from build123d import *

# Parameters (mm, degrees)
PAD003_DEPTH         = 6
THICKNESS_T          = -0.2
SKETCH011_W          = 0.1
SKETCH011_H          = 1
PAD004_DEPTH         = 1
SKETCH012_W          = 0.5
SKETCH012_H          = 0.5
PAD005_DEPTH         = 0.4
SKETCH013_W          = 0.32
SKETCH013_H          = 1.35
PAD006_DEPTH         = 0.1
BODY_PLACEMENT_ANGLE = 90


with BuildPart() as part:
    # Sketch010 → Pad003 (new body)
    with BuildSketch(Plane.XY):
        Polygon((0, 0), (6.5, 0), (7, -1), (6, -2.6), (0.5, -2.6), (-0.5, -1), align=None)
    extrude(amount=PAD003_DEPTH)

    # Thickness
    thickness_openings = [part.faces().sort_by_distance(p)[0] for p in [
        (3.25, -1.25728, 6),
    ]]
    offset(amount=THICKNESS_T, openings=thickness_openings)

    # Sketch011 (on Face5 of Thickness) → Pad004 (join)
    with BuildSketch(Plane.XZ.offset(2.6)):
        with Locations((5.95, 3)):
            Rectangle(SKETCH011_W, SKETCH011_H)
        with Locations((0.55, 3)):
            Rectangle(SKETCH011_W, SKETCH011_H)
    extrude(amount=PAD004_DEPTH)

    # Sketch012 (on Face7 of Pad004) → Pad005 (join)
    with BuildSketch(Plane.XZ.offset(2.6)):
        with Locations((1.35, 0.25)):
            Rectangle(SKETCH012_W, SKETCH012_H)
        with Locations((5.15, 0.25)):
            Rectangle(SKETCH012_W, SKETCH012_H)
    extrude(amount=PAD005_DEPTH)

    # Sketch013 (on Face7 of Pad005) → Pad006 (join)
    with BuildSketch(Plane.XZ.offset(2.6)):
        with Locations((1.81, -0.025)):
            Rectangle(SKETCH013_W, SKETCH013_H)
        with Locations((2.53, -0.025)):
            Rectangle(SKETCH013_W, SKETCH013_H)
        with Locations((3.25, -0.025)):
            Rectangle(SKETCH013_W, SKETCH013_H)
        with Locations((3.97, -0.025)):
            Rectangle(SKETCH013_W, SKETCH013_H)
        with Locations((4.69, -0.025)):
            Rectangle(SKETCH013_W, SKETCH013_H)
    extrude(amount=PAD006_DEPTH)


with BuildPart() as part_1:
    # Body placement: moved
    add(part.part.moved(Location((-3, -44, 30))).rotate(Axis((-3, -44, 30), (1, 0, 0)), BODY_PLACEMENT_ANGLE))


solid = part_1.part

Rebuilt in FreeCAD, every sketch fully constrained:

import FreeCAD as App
import Part
import Sketcher
Q = App.Units.Quantity


def faces_at(feature, points):
    """Names of the faces that lie closest to the given points."""
    faces = feature.Shape.Faces
    near = lambda p: min(range(len(faces)), key=lambda i: faces[i].distToShape(Part.Vertex(*p))[0])
    return sorted({f"Face{near(p) + 1}" for p in points})

doc = App.newDocument("Part")
body = doc.addObject("PartDesign::Body", "Body")

# Sketch on XY plane
sketch1 = doc.addObject("Sketcher::SketchObject", "Sketch")
body.addObject(sketch1)
sketch1.AttachmentSupport = (doc.XY_Plane, [""])
sketch1.MapMode = "FlatFace"
sketch1.addGeometry(Part.LineSegment(App.Vector(6.5, 0, 0), App.Vector(0, 0, 0)), False)
sketch1.addGeometry(Part.LineSegment(App.Vector(0, 0, 0), App.Vector(-0.5, -1, 0)), False)
sketch1.addGeometry(Part.LineSegment(App.Vector(-0.5, -1, 0), App.Vector(0.5, -2.6, 0)), False)
sketch1.addGeometry(Part.LineSegment(App.Vector(0.5, -2.6, 0), App.Vector(6, -2.6, 0)), False)
sketch1.addGeometry(Part.LineSegment(App.Vector(6, -2.6, 0), App.Vector(7, -1, 0)), False)
sketch1.addGeometry(Part.LineSegment(App.Vector(7, -1, 0), App.Vector(6.5, 0, 0)), False)
sketch1.addConstraint(Sketcher.Constraint("Coincident", 0, 2, 1, 1))
sketch1.addConstraint(Sketcher.Constraint("Coincident", 1, 2, 2, 1))
sketch1.addConstraint(Sketcher.Constraint("Coincident", 2, 2, 3, 1))
sketch1.addConstraint(Sketcher.Constraint("Coincident", 3, 2, 4, 1))
sketch1.addConstraint(Sketcher.Constraint("Coincident", 4, 2, 5, 1))
sketch1.addConstraint(Sketcher.Constraint("Coincident", 5, 2, 0, 1))
sketch1.addConstraint(Sketcher.Constraint("Horizontal", 0))
sketch1.addConstraint(Sketcher.Constraint("Horizontal", 3))
sketch1.addConstraint(Sketcher.Constraint("Coincident", 0, 2, -1, 1))
sketch1.addConstraint(Sketcher.Constraint("Horizontal", 1, 2, 4, 2))
sketch1.addConstraint(Sketcher.Constraint("Equal", 2, 4))
sketch1.addConstraint(Sketcher.Constraint("Equal", 1, 5))
sketch1.addConstraint(Sketcher.Constraint("DistanceX", 0, 2, 0, 1, Q("6.5 mm")))
sketch1.addConstraint(Sketcher.Constraint("DistanceX", 3, 1, 3, 2, Q("5.5 mm")))
sketch1.addConstraint(Sketcher.Constraint("DistanceY", 1, 2, -1, 1, Q("1 mm")))
sketch1.addConstraint(Sketcher.Constraint("DistanceX", -1, 1, 4, 2, Q("7 mm")))
sketch1.addConstraint(Sketcher.Constraint("DistanceY", 2, 2, -1, 1, Q("2.6 mm")))
pad1 = doc.addObject("PartDesign::Pad", "Pad")
body.addObject(pad1)
pad1.Profile = sketch1
pad1.Length = 6
doc.recompute()

thickness = doc.addObject("PartDesign::Thickness", "Thickness")
body.addObject(thickness)
thickness.Base = (pad1, faces_at(pad1, [(3.25, -1.3, 6)]))
thickness.Value = 0.2
thickness.Reversed = True
thickness.Join = "Arc"

# Sketch on XZ plane
sketch2 = doc.addObject("Sketcher::SketchObject", "Sketch001")
body.addObject(sketch2)
sketch2.AttachmentSupport = (doc.XZ_Plane, [""])
sketch2.MapMode = "FlatFace"
sketch2.AttachmentOffset = App.Placement(App.Vector(0, 0, 2.6), App.Rotation())
sketch2.addGeometry(Part.LineSegment(App.Vector(5.9, 3.5, 0), App.Vector(5.9, 2.5, 0)), False)
sketch2.addGeometry(Part.LineSegment(App.Vector(5.9, 2.5, 0), App.Vector(6, 2.5, 0)), False)
sketch2.addGeometry(Part.LineSegment(App.Vector(6, 2.5, 0), App.Vector(6, 3.5, 0)), False)
sketch2.addGeometry(Part.LineSegment(App.Vector(6, 3.5, 0), App.Vector(5.9, 3.5, 0)), False)
sketch2.addGeometry(Part.LineSegment(App.Vector(0.5, 3.5, 0), App.Vector(0.5, 2.5, 0)), False)
sketch2.addGeometry(Part.LineSegment(App.Vector(0.5, 2.5, 0), App.Vector(0.6, 2.5, 0)), False)
sketch2.addGeometry(Part.LineSegment(App.Vector(0.6, 2.5, 0), App.Vector(0.6, 3.5, 0)), False)
sketch2.addGeometry(Part.LineSegment(App.Vector(0.6, 3.5, 0), App.Vector(0.5, 3.5, 0)), False)
sketch2.addConstraint(Sketcher.Constraint("Coincident", 0, 2, 1, 1))
sketch2.addConstraint(Sketcher.Constraint("Coincident", 1, 2, 2, 1))
sketch2.addConstraint(Sketcher.Constraint("Coincident", 2, 2, 3, 1))
sketch2.addConstraint(Sketcher.Constraint("Coincident", 3, 2, 0, 1))
sketch2.addConstraint(Sketcher.Constraint("Coincident", 4, 2, 5, 1))
sketch2.addConstraint(Sketcher.Constraint("Coincident", 5, 2, 6, 1))
sketch2.addConstraint(Sketcher.Constraint("Coincident", 6, 2, 7, 1))
sketch2.addConstraint(Sketcher.Constraint("Coincident", 7, 2, 4, 1))
sketch2.addConstraint(Sketcher.Constraint("Vertical", 0))
sketch2.addConstraint(Sketcher.Constraint("Horizontal", 1))
sketch2.addConstraint(Sketcher.Constraint("Vertical", 2))
sketch2.addConstraint(Sketcher.Constraint("Horizontal", 3))
sketch2.addConstraint(Sketcher.Constraint("Vertical", 4))
sketch2.addConstraint(Sketcher.Constraint("Horizontal", 5))
sketch2.addConstraint(Sketcher.Constraint("Vertical", 6))
sketch2.addConstraint(Sketcher.Constraint("Horizontal", 7))
sketch2.addConstraint(Sketcher.Constraint("Horizontal", 1, 2, 4, 2))
sketch2.addConstraint(Sketcher.Constraint("Horizontal", 3, 2, 6, 2))
sketch2.addConstraint(Sketcher.Constraint("Equal", 3, 5))
sketch2.addConstraint(Sketcher.Constraint("DistanceY", 0, 2, 0, 1, Q("1 mm")))
sketch2.addConstraint(Sketcher.Constraint("DistanceX", 1, 1, 1, 2, Q("0.1 mm")))
sketch2.addConstraint(Sketcher.Constraint("DistanceX", -1, 1, 1, 2, Q("6 mm")))
sketch2.addConstraint(Sketcher.Constraint("DistanceY", -1, 1, 0, 2, Q("2.5 mm")))
sketch2.addConstraint(Sketcher.Constraint("DistanceX", -1, 1, 4, 2, Q("0.5 mm")))
pad2 = doc.addObject("PartDesign::Pad", "Pad001")
body.addObject(pad2)
pad2.Profile = sketch2
pad2.Length = 1

# Sketch on XZ plane
sketch3 = doc.addObject("Sketcher::SketchObject", "Sketch002")
body.addObject(sketch3)
sketch3.AttachmentSupport = (doc.XZ_Plane, [""])
sketch3.MapMode = "FlatFace"
sketch3.AttachmentOffset = App.Placement(App.Vector(0, 0, 2.6), App.Rotation())
sketch3.addGeometry(Part.LineSegment(App.Vector(1.1, 0.5, 0), App.Vector(1.1, 0, 0)), False)
sketch3.addGeometry(Part.LineSegment(App.Vector(1.1, 0, 0), App.Vector(1.6, 0, 0)), False)
sketch3.addGeometry(Part.LineSegment(App.Vector(1.6, 0, 0), App.Vector(1.6, 0.5, 0)), False)
sketch3.addGeometry(Part.LineSegment(App.Vector(1.6, 0.5, 0), App.Vector(1.1, 0.5, 0)), False)
sketch3.addGeometry(Part.LineSegment(App.Vector(4.9, 0.5, 0), App.Vector(4.9, 0, 0)), False)
sketch3.addGeometry(Part.LineSegment(App.Vector(4.9, 0, 0), App.Vector(5.4, 0, 0)), False)
sketch3.addGeometry(Part.LineSegment(App.Vector(5.4, 0, 0), App.Vector(5.4, 0.5, 0)), False)
sketch3.addGeometry(Part.LineSegment(App.Vector(5.4, 0.5, 0), App.Vector(4.9, 0.5, 0)), False)
sketch3.addConstraint(Sketcher.Constraint("Coincident", 0, 2, 1, 1))
sketch3.addConstraint(Sketcher.Constraint("Coincident", 1, 2, 2, 1))
sketch3.addConstraint(Sketcher.Constraint("Coincident", 2, 2, 3, 1))
sketch3.addConstraint(Sketcher.Constraint("Coincident", 3, 2, 0, 1))
sketch3.addConstraint(Sketcher.Constraint("Coincident", 4, 2, 5, 1))
sketch3.addConstraint(Sketcher.Constraint("Coincident", 5, 2, 6, 1))
sketch3.addConstraint(Sketcher.Constraint("Coincident", 6, 2, 7, 1))
sketch3.addConstraint(Sketcher.Constraint("Coincident", 7, 2, 4, 1))
sketch3.addConstraint(Sketcher.Constraint("Vertical", 0))
sketch3.addConstraint(Sketcher.Constraint("Horizontal", 1))
sketch3.addConstraint(Sketcher.Constraint("Vertical", 2))
sketch3.addConstraint(Sketcher.Constraint("Horizontal", 3))
sketch3.addConstraint(Sketcher.Constraint("Vertical", 4))
sketch3.addConstraint(Sketcher.Constraint("Horizontal", 5))
sketch3.addConstraint(Sketcher.Constraint("Vertical", 6))
sketch3.addConstraint(Sketcher.Constraint("Horizontal", 7))
sketch3.addConstraint(Sketcher.Constraint("PointOnObject", 0, 2, -1))
sketch3.addConstraint(Sketcher.Constraint("PointOnObject", 4, 2, -1))
sketch3.addConstraint(Sketcher.Constraint("Horizontal", 3, 2, 6, 2))
sketch3.addConstraint(Sketcher.Constraint("Equal", 3, 5))
sketch3.addConstraint(Sketcher.Constraint("Equal", 7, 0))
sketch3.addConstraint(Sketcher.Constraint("DistanceX", 1, 1, 1, 2, Q("0.5 mm")))
sketch3.addConstraint(Sketcher.Constraint("DistanceX", -1, 1, 0, 2, Q("1.1 mm")))
sketch3.addConstraint(Sketcher.Constraint("DistanceX", -1, 1, 4, 2, Q("4.9 mm")))
pad3 = doc.addObject("PartDesign::Pad", "Pad002")
body.addObject(pad3)
pad3.Profile = sketch3
pad3.Length = 0.4

# Sketch on XZ plane
sketch4 = doc.addObject("Sketcher::SketchObject", "Sketch003")
body.addObject(sketch4)
sketch4.AttachmentSupport = (doc.XZ_Plane, [""])
sketch4.MapMode = "FlatFace"
sketch4.AttachmentOffset = App.Placement(App.Vector(0, 0, 2.6), App.Rotation())
sketch4.addGeometry(Part.LineSegment(App.Vector(1.65, 0.65, 0), App.Vector(1.65, -0.7, 0)), False)
sketch4.addGeometry(Part.LineSegment(App.Vector(1.65, -0.7, 0), App.Vector(1.97, -0.7, 0)), False)
sketch4.addGeometry(Part.LineSegment(App.Vector(1.97, -0.7, 0), App.Vector(1.97, 0.65, 0)), False)
sketch4.addGeometry(Part.LineSegment(App.Vector(1.97, 0.65, 0), App.Vector(1.65, 0.65, 0)), False)
sketch4.addGeometry(Part.LineSegment(App.Vector(2.37, 0.65, 0), App.Vector(2.37, -0.7, 0)), False)
sketch4.addGeometry(Part.LineSegment(App.Vector(2.37, -0.7, 0), App.Vector(2.69, -0.7, 0)), False)
sketch4.addGeometry(Part.LineSegment(App.Vector(2.69, -0.7, 0), App.Vector(2.69, 0.65, 0)), False)
sketch4.addGeometry(Part.LineSegment(App.Vector(2.69, 0.65, 0), App.Vector(2.37, 0.65, 0)), False)
sketch4.addGeometry(Part.LineSegment(App.Vector(3.09, 0.65, 0), App.Vector(3.09, -0.7, 0)), False)
sketch4.addGeometry(Part.LineSegment(App.Vector(3.09, -0.7, 0), App.Vector(3.41, -0.7, 0)), False)
sketch4.addGeometry(Part.LineSegment(App.Vector(3.41, -0.7, 0), App.Vector(3.41, 0.65, 0)), False)
sketch4.addGeometry(Part.LineSegment(App.Vector(3.41, 0.65, 0), App.Vector(3.09, 0.65, 0)), False)
sketch4.addGeometry(Part.LineSegment(App.Vector(3.81, 0.65, 0), App.Vector(3.81, -0.7, 0)), False)
sketch4.addGeometry(Part.LineSegment(App.Vector(3.81, -0.7, 0), App.Vector(4.13, -0.7, 0)), False)
sketch4.addGeometry(Part.LineSegment(App.Vector(4.13, -0.7, 0), App.Vector(4.13, 0.65, 0)), False)
sketch4.addGeometry(Part.LineSegment(App.Vector(4.13, 0.65, 0), App.Vector(3.81, 0.65, 0)), False)
sketch4.addGeometry(Part.LineSegment(App.Vector(4.53, 0.65, 0), App.Vector(4.53, -0.7, 0)), False)
sketch4.addGeometry(Part.LineSegment(App.Vector(4.53, -0.7, 0), App.Vector(4.85, -0.7, 0)), False)
sketch4.addGeometry(Part.LineSegment(App.Vector(4.85, -0.7, 0), App.Vector(4.85, 0.65, 0)), False)
sketch4.addGeometry(Part.LineSegment(App.Vector(4.85, 0.65, 0), App.Vector(4.53, 0.65, 0)), False)
sketch4.addConstraint(Sketcher.Constraint("Coincident", 0, 2, 1, 1))
sketch4.addConstraint(Sketcher.Constraint("Coincident", 1, 2, 2, 1))
sketch4.addConstraint(Sketcher.Constraint("Coincident", 2, 2, 3, 1))
sketch4.addConstraint(Sketcher.Constraint("Coincident", 3, 2, 0, 1))
sketch4.addConstraint(Sketcher.Constraint("Coincident", 4, 2, 5, 1))
sketch4.addConstraint(Sketcher.Constraint("Coincident", 5, 2, 6, 1))
sketch4.addConstraint(Sketcher.Constraint("Coincident", 6, 2, 7, 1))
sketch4.addConstraint(Sketcher.Constraint("Coincident", 7, 2, 4, 1))
sketch4.addConstraint(Sketcher.Constraint("Coincident", 8, 2, 9, 1))
sketch4.addConstraint(Sketcher.Constraint("Coincident", 9, 2, 10, 1))
sketch4.addConstraint(Sketcher.Constraint("Coincident", 10, 2, 11, 1))
sketch4.addConstraint(Sketcher.Constraint("Coincident", 11, 2, 8, 1))
sketch4.addConstraint(Sketcher.Constraint("Coincident", 12, 2, 13, 1))
sketch4.addConstraint(Sketcher.Constraint("Coincident", 13, 2, 14, 1))
sketch4.addConstraint(Sketcher.Constraint("Coincident", 14, 2, 15, 1))
sketch4.addConstraint(Sketcher.Constraint("Coincident", 15, 2, 12, 1))
sketch4.addConstraint(Sketcher.Constraint("Coincident", 16, 2, 17, 1))
sketch4.addConstraint(Sketcher.Constraint("Coincident", 17, 2, 18, 1))
sketch4.addConstraint(Sketcher.Constraint("Coincident", 18, 2, 19, 1))
sketch4.addConstraint(Sketcher.Constraint("Coincident", 19, 2, 16, 1))
sketch4.addConstraint(Sketcher.Constraint("Vertical", 0))
sketch4.addConstraint(Sketcher.Constraint("Horizontal", 1))
sketch4.addConstraint(Sketcher.Constraint("Vertical", 2))
sketch4.addConstraint(Sketcher.Constraint("Horizontal", 3))
sketch4.addConstraint(Sketcher.Constraint("Vertical", 4))
sketch4.addConstraint(Sketcher.Constraint("Horizontal", 5))
sketch4.addConstraint(Sketcher.Constraint("Vertical", 6))
sketch4.addConstraint(Sketcher.Constraint("Horizontal", 7))
sketch4.addConstraint(Sketcher.Constraint("Vertical", 8))
sketch4.addConstraint(Sketcher.Constraint("Horizontal", 9))
sketch4.addConstraint(Sketcher.Constraint("Vertical", 10))
sketch4.addConstraint(Sketcher.Constraint("Horizontal", 11))
sketch4.addConstraint(Sketcher.Constraint("Vertical", 12))
sketch4.addConstraint(Sketcher.Constraint("Horizontal", 13))
sketch4.addConstraint(Sketcher.Constraint("Vertical", 14))
sketch4.addConstraint(Sketcher.Constraint("Horizontal", 15))
sketch4.addConstraint(Sketcher.Constraint("Vertical", 16))
sketch4.addConstraint(Sketcher.Constraint("Horizontal", 17))
sketch4.addConstraint(Sketcher.Constraint("Vertical", 18))
sketch4.addConstraint(Sketcher.Constraint("Horizontal", 19))
sketch4.addConstraint(Sketcher.Constraint("Horizontal", 1, 2, 4, 2))
sketch4.addConstraint(Sketcher.Constraint("Horizontal", 3, 2, 6, 2))
sketch4.addConstraint(Sketcher.Constraint("Horizontal", 5, 2, 8, 2))
sketch4.addConstraint(Sketcher.Constraint("Horizontal", 7, 2, 10, 2))
sketch4.addConstraint(Sketcher.Constraint("Horizontal", 9, 2, 12, 2))
sketch4.addConstraint(Sketcher.Constraint("Horizontal", 11, 2, 14, 2))
sketch4.addConstraint(Sketcher.Constraint("Horizontal", 13, 2, 16, 2))
sketch4.addConstraint(Sketcher.Constraint("Horizontal", 15, 2, 18, 2))
sketch4.addConstraint(Sketcher.Constraint("Equal", 3, 5))
sketch4.addConstraint(Sketcher.Constraint("Equal", 7, 9))
sketch4.addConstraint(Sketcher.Constraint("Equal", 11, 13))
sketch4.addConstraint(Sketcher.Constraint("Equal", 15, 17))
sketch4.addConstraint(Sketcher.Constraint("DistanceX", 1, 1, 1, 2, Q("0.32 mm")))
sketch4.addConstraint(Sketcher.Constraint("DistanceY", 0, 2, 0, 1, Q("1.35 mm")))
sketch4.addConstraint(Sketcher.Constraint("DistanceY", 0, 2, -1, 1, Q("0.7 mm")))
sketch4.addConstraint(Sketcher.Constraint("DistanceX", 1, 2, 4, 2, Q("0.4 mm")))
sketch4.addConstraint(Sketcher.Constraint("DistanceX", 5, 2, 8, 2, Q("0.4 mm")))
sketch4.addConstraint(Sketcher.Constraint("DistanceX", 9, 2, 12, 2, Q("0.4 mm")))
sketch4.addConstraint(Sketcher.Constraint("DistanceX", 13, 2, 16, 2, Q("0.4 mm")))
sketch4.addConstraint(Sketcher.Constraint("DistanceX", -1, 1, 0, 2, Q("1.65 mm")))
pad4 = doc.addObject("PartDesign::Pad", "Pad003")
body.addObject(pad4)
pad4.Profile = sketch4
pad4.Length = 0.1
body2 = doc.addObject("PartDesign::Body", "Body001")
doc.recompute()

body.Placement = App.Placement(App.Vector(-3, -44, 30), App.Rotation(App.Vector(1, 0, 0), 90))
boolean = doc.addObject("PartDesign::Boolean", "Boolean")
body2.addObject(boolean)
boolean.Type = "Fuse"
boolean.addObjects([body])

doc.recompute()
